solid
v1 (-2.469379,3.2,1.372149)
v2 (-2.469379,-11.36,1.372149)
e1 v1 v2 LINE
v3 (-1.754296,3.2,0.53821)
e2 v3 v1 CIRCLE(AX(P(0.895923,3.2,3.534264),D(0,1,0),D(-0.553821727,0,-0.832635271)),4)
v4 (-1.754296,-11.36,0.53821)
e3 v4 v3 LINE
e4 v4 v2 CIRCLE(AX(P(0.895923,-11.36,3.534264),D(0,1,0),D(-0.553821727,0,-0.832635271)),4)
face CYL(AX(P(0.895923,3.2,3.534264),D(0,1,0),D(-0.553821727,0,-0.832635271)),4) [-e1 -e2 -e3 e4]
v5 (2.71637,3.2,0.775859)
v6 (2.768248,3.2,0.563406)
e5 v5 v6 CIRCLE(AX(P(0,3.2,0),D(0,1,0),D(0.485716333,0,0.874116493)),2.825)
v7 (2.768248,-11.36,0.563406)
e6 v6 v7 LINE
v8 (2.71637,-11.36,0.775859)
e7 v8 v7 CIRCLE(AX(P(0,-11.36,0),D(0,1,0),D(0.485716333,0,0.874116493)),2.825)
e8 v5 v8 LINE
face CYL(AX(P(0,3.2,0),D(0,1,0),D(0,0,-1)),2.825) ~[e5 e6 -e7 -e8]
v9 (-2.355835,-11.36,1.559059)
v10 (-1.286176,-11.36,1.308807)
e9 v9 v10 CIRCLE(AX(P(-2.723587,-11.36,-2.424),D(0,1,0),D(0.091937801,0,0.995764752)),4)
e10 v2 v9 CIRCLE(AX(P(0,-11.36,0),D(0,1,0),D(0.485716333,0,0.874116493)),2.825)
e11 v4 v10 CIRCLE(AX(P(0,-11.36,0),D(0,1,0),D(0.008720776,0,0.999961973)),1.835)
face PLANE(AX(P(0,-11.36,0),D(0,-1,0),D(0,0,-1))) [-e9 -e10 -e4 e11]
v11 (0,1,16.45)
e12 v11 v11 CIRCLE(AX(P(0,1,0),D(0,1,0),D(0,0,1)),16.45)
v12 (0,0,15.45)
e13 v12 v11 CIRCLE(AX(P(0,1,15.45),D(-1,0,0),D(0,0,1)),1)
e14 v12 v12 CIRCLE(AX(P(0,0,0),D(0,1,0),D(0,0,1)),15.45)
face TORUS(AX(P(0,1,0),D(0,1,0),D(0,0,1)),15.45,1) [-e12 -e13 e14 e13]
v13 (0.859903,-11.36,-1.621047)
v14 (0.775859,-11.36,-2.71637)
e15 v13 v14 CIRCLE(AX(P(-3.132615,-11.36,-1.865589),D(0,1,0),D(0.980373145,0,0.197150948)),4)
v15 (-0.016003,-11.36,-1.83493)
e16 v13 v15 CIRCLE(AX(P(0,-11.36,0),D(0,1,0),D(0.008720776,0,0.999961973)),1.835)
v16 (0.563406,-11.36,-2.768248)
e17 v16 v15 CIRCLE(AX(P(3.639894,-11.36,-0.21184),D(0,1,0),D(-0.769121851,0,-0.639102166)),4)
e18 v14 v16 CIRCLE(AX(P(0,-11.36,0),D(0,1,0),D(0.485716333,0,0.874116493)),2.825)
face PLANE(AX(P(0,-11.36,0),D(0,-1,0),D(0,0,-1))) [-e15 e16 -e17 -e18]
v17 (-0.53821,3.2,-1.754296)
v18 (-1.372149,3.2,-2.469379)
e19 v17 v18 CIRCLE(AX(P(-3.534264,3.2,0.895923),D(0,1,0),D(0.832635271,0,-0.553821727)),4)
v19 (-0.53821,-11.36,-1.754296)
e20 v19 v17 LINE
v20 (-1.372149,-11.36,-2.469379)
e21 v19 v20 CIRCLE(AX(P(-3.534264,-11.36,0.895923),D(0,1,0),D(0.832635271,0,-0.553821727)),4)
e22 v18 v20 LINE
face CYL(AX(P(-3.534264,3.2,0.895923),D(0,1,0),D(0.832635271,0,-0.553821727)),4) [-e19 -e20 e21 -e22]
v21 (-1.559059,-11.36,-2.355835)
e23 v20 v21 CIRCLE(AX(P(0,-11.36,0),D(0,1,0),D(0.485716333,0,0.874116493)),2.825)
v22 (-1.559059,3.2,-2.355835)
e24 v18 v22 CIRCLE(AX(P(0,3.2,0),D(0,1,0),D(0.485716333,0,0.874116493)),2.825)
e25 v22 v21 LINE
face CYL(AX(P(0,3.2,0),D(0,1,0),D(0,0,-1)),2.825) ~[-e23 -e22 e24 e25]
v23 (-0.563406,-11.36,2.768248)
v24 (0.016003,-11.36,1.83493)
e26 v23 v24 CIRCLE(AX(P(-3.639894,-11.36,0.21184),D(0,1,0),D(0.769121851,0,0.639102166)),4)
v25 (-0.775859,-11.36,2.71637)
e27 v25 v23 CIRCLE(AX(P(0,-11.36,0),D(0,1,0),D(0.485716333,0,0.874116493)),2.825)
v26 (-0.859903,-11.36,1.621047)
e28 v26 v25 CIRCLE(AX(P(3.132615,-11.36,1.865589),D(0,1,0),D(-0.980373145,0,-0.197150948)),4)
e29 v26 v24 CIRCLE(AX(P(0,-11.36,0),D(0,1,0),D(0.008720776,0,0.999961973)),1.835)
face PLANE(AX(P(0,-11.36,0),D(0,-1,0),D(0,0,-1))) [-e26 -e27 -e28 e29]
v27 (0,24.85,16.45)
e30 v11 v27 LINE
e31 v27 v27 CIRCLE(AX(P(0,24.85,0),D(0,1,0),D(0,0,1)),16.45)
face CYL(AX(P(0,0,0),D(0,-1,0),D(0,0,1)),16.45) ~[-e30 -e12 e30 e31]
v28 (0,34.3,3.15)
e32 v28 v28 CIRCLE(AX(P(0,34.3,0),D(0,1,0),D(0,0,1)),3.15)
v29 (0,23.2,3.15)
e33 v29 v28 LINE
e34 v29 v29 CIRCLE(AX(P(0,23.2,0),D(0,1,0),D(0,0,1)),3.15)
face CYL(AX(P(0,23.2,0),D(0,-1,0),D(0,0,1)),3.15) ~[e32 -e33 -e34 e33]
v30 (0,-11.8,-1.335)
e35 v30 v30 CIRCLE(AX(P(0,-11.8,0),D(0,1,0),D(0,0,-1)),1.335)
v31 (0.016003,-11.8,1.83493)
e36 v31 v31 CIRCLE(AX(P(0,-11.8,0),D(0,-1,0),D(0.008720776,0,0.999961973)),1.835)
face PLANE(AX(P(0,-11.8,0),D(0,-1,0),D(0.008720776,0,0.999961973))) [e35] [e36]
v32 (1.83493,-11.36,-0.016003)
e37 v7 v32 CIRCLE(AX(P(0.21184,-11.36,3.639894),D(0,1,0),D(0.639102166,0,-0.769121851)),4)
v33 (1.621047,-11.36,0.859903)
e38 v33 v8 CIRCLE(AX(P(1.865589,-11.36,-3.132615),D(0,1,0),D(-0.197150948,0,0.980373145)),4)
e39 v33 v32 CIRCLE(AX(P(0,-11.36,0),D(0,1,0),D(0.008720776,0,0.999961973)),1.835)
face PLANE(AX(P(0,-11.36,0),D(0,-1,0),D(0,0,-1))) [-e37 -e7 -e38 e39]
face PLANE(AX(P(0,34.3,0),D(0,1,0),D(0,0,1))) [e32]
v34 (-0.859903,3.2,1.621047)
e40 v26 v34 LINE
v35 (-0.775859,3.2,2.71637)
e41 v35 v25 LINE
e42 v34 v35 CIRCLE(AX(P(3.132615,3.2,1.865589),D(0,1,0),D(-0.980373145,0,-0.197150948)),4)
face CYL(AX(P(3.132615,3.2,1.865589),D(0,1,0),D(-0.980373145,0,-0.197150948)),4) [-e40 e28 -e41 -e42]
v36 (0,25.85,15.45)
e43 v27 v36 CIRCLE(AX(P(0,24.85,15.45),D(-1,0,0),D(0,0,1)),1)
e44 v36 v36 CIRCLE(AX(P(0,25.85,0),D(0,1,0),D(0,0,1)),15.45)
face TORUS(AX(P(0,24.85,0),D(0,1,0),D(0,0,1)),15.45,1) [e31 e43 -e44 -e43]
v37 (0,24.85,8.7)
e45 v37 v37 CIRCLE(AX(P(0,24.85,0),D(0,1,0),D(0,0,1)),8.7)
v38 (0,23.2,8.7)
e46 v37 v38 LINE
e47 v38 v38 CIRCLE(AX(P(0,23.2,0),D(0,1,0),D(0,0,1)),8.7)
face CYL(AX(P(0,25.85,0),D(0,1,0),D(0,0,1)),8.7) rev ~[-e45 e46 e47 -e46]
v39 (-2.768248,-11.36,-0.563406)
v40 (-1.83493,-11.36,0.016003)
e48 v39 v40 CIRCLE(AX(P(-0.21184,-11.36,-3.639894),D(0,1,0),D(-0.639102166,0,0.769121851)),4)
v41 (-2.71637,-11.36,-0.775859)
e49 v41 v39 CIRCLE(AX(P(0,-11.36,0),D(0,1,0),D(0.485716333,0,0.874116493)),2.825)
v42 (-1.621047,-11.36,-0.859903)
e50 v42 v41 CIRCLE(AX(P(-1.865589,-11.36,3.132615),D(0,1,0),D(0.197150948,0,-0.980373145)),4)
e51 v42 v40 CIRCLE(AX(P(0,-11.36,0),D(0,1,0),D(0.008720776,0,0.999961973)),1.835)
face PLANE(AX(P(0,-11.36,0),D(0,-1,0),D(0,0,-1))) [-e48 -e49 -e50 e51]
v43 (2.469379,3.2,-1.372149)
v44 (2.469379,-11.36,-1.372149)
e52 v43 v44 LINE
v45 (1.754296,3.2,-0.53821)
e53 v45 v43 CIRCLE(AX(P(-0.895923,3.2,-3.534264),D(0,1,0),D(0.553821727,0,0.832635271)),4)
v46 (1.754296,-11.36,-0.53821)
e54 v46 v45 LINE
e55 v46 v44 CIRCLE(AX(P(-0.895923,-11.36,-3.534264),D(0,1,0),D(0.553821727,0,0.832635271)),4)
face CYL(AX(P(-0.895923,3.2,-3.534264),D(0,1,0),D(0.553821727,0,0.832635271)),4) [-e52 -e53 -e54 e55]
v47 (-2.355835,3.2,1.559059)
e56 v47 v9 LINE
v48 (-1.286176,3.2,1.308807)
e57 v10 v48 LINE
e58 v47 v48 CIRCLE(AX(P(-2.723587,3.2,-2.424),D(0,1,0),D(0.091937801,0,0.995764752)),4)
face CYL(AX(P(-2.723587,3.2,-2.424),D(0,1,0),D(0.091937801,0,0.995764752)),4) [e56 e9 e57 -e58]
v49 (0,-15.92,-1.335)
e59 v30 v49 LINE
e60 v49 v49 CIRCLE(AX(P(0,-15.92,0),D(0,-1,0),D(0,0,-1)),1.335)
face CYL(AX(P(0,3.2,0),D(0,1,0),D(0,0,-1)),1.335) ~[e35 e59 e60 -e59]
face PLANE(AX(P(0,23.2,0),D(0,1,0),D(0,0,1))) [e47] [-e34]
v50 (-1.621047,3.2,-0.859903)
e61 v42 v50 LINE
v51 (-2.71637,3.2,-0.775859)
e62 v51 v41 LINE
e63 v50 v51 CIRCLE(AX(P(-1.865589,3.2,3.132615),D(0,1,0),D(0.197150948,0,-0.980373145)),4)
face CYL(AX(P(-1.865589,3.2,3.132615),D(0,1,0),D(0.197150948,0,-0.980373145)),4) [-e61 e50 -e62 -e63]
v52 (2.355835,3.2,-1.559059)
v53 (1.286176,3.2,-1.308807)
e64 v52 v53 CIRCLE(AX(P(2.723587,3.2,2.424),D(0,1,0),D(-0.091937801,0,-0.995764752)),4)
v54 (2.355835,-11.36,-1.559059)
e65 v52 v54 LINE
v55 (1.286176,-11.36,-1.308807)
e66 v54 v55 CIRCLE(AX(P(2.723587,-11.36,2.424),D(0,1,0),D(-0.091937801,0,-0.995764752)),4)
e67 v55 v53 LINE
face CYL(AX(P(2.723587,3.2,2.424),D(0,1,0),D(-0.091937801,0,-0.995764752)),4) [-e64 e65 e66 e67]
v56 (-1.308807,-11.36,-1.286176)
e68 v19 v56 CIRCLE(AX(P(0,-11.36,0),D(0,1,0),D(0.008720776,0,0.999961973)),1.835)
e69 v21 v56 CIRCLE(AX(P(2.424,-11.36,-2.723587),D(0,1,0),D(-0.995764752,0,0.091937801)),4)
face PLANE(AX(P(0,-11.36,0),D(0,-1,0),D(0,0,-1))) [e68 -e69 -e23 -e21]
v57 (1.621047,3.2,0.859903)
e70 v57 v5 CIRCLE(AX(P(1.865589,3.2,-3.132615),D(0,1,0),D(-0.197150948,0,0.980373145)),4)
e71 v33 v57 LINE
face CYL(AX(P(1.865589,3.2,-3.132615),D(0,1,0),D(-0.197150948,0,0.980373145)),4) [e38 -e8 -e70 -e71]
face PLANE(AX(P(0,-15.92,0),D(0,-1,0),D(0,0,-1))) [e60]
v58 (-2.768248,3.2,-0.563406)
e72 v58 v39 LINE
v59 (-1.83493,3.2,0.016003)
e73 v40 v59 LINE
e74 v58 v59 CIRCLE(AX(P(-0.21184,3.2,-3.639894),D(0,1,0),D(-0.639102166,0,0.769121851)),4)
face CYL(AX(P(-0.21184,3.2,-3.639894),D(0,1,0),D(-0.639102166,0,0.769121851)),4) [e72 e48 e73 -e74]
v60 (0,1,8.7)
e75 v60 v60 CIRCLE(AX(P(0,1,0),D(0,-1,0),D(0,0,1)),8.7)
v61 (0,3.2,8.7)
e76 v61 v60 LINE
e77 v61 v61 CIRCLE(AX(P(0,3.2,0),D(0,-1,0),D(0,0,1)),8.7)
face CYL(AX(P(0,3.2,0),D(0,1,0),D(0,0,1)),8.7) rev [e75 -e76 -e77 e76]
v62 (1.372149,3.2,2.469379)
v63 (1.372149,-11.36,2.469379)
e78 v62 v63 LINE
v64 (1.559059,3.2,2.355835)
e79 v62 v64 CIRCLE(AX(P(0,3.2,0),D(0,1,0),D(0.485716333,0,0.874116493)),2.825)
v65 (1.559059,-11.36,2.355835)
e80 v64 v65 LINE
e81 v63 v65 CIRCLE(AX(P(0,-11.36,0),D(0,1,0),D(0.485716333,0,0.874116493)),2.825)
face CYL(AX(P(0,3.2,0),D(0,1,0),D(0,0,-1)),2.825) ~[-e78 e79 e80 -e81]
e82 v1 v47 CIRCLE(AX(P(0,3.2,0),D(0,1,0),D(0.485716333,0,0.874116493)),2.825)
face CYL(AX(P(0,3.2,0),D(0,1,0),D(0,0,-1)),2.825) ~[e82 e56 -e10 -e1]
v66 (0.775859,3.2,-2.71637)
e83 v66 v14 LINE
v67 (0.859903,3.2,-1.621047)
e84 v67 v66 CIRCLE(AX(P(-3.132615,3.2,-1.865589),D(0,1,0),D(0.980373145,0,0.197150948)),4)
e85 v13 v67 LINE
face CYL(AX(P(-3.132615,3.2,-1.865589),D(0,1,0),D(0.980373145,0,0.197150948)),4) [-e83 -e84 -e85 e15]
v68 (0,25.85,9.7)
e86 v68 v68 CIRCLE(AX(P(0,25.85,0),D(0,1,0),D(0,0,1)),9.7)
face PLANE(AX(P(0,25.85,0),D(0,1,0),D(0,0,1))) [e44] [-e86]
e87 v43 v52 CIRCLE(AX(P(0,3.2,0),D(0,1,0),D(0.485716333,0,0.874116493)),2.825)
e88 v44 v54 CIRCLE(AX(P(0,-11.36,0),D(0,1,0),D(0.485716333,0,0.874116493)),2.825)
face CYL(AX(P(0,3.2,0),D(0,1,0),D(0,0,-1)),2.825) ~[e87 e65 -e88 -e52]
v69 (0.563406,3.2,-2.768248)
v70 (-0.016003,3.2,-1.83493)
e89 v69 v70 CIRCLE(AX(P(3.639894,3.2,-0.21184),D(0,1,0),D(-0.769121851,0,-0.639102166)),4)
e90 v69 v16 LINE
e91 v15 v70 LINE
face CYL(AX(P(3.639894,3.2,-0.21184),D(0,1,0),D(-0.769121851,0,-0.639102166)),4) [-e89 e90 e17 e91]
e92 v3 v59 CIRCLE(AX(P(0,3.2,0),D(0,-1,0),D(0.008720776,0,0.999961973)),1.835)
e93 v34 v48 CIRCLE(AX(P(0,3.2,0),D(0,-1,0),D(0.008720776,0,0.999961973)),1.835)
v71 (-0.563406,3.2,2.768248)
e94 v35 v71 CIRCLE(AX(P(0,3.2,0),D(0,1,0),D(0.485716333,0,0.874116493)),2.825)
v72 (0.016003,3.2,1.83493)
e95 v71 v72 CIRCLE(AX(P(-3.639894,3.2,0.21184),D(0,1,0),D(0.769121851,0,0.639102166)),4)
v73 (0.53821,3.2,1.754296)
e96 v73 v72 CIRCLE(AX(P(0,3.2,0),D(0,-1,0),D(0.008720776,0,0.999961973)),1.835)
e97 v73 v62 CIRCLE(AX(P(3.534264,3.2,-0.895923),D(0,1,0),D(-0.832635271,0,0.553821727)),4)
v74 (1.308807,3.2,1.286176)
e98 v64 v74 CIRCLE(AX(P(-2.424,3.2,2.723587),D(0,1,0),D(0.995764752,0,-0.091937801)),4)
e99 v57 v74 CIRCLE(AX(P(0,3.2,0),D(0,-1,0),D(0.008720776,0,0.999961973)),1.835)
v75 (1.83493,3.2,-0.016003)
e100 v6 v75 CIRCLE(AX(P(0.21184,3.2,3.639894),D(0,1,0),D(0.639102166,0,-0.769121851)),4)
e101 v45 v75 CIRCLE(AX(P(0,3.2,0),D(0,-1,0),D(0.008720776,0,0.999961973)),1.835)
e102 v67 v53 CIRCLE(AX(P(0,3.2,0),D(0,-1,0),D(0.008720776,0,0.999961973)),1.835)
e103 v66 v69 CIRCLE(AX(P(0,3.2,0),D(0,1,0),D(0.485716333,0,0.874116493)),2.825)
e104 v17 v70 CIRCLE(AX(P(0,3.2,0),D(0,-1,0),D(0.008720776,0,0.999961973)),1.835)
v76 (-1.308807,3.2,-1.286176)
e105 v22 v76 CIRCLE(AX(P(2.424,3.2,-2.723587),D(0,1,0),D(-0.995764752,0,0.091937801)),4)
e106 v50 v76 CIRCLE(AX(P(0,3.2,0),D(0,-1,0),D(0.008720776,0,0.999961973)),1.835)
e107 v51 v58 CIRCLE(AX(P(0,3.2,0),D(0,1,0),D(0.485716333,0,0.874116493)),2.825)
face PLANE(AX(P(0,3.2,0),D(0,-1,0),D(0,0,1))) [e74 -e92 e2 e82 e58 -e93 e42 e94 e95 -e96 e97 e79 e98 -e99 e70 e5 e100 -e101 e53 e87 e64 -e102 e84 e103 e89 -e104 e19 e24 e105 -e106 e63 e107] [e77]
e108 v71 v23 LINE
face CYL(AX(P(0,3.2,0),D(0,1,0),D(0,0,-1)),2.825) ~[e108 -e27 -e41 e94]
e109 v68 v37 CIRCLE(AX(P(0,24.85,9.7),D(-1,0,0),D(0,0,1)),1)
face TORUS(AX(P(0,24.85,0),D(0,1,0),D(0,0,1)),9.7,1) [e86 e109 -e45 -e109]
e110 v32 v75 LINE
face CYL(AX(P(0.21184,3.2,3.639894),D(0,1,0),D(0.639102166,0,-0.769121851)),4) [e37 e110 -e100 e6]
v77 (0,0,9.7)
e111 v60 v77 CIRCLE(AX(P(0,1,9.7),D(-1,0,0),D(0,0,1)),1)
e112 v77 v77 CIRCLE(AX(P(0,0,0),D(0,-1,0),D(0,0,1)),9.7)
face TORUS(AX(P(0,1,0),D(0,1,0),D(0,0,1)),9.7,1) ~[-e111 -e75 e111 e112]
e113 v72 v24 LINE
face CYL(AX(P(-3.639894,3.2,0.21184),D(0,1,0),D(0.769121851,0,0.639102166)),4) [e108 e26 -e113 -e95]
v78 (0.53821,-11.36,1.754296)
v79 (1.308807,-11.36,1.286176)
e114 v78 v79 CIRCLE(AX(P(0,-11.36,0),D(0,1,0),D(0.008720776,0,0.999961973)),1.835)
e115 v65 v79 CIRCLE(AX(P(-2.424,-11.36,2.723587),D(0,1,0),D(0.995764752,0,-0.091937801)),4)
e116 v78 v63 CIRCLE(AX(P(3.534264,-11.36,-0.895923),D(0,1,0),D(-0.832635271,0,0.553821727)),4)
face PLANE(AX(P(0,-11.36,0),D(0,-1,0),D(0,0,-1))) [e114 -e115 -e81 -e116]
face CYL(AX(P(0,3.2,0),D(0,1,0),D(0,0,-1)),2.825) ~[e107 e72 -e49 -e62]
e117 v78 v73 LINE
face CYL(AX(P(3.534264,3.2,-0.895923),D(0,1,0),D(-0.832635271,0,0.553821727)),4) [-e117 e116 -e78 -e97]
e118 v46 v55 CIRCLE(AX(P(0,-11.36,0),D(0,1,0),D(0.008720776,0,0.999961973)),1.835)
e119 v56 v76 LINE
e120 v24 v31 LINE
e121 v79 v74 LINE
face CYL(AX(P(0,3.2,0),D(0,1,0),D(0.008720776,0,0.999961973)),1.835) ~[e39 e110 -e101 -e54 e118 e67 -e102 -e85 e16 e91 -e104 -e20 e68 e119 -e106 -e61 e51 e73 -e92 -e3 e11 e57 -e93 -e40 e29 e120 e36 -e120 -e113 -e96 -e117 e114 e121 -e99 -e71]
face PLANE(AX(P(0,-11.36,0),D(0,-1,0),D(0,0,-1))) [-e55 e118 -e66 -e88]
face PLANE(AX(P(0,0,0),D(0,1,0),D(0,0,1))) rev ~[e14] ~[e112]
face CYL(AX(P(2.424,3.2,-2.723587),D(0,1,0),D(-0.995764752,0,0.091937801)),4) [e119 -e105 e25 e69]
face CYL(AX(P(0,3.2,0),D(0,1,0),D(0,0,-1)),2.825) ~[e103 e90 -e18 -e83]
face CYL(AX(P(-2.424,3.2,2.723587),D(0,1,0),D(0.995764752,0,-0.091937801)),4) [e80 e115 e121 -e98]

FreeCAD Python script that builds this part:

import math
import FreeCAD as App
import Part
import Sketcher
from FreeCAD import Vector
Q = App.Units.Quantity


def edges_at(feature, points):
    """Names of the edges that pass closest to the given points."""
    edges = feature.Shape.Edges
    near = lambda p: min(range(len(edges)), key=lambda i: edges[i].distToShape(Part.Vertex(*p))[0])
    return sorted({f"Edge{near(p) + 1}" for p in points})

doc = App.newDocument("Part")
body = doc.addObject("PartDesign::Body", "Body")

sketch1 = body.newObject("Sketcher::SketchObject", "Sketch")
sketch1.AttachmentSupport = (doc.getObject("XZ_Plane"), [""])
sketch1.MapMode = "FlatFace"
sketch1.addGeometry(Part.Circle(Vector(0, 0, 0), Vector(0, 0, 1), 16), False)
sketch1.addConstraint([
    Sketcher.Constraint("Coincident", 0, 3, -1, 1),
    Sketcher.Constraint("Diameter", 0, Q("32.9 mm")),
])
pad1 = body.newObject("PartDesign::Pad", "Pad")
pad1.Profile = sketch1
pad1.Length = 25.85
pad1.Reversed = True

sketch2 = body.newObject("Sketcher::SketchObject", "Sketch001")
sketch2.AttachmentSupport = (doc.getObject("XZ_Plane"), [""])
sketch2.MapMode = "FlatFace"
sketch2.AttachmentOffset = App.Placement(Vector(0, 0, -25.85), App.Rotation())
sketch2.addGeometry(Part.Circle(Vector(0, 0, 0), Vector(0, 0, 1), 9), False)
sketch2.addConstraint([
    Sketcher.Constraint("Coincident", 0, 3, -1, 1),
    Sketcher.Constraint("Diameter", 0, Q("17.4 mm")),
])
pocket1 = body.newObject("PartDesign::Pocket", "Pocket")
pocket1.Profile = sketch2
pocket1.Length = 2.65
pocket1.Reversed = True

sketch3 = body.newObject("Sketcher::SketchObject", "Sketch002")
sketch3.AttachmentSupport = (doc.getObject("XZ_Plane"), [""])
sketch3.MapMode = "FlatFace"
sketch3.AttachmentOffset = App.Placement(Vector(0, 0, -23.2), App.Rotation())
sketch3.addGeometry(Part.Circle(Vector(0, 0, 0), Vector(0, 0, 1), 3.1), False)
sketch3.addConstraint([
    Sketcher.Constraint("Coincident", 0, 3, -1, 1),
    Sketcher.Constraint("Diameter", 0, Q("6.3 mm")),
])
pad2 = body.newObject("PartDesign::Pad", "Pad001")
pad2.Profile = sketch3
pad2.Length = 11.1
pad2.Reversed = True

sketch4 = body.newObject("Sketcher::SketchObject", "Sketch003")
sketch4.AttachmentSupport = (doc.getObject("XZ_Plane"), [""])
sketch4.MapMode = "FlatFace"
sketch4.AttachmentOffset = App.Placement(Vector(0, 0, -3.2), App.Rotation())
sketch4.addGeometry(Part.Circle(Vector(0, 0, 0), Vector(0, 0, 1), 9), False)
sketch4.addConstraint([
    Sketcher.Constraint("Coincident", 0, 3, -1, 1),
    Sketcher.Constraint("Diameter", 0, Q("17.4 mm")),
])
pocket2 = body.newObject("PartDesign::Pocket", "Pocket001")
pocket2.Profile = sketch4
pocket2.Length = 3.2
pocket2.Reversed = True

sketch5 = body.newObject("Sketcher::SketchObject", "Sketch004")
sketch5.AttachmentSupport = (doc.getObject("XZ_Plane"), [""])
sketch5.MapMode = "FlatFace"
sketch5.AttachmentOffset = App.Placement(Vector(0, 0, -3.2), App.Rotation())
sketch5.addGeometry(Part.Circle(Vector(0, 0, 0), Vector(0, 0, 1), 1.3), False)
sketch5.addConstraint([
    Sketcher.Constraint("Coincident", 0, 3, -1, 1),
    Sketcher.Constraint("Diameter", 0, Q("2.67 mm")),
])
pad3 = body.newObject("PartDesign::Pad", "Pad002")
pad3.Profile = sketch5
pad3.Length = 19.12

sketch6 = body.newObject("Sketcher::SketchObject", "Sketch005")
sketch6.AttachmentSupport = (doc.getObject("XZ_Plane"), [""])
sketch6.MapMode = "FlatFace"
sketch6.AttachmentOffset = App.Placement(Vector(0, 0, -3.2), App.Rotation())
sketch6.addGeometry(Part.Circle(Vector(0, 0, 0), Vector(0, 0, 1), 2.8), False)
sketch6.addConstraint([
    Sketcher.Constraint("Coincident", 0, 3, -1, 1),
    Sketcher.Constraint("Diameter", 0, Q("5.65 mm")),
])
pad4 = body.newObject("PartDesign::Pad", "Pad003")
pad4.Profile = sketch6
pad4.Length = 14.56
doc.recompute()

fillet = body.newObject("PartDesign::Fillet", "Fillet")
fillet.Base = (pad4, edges_at(pad4, [
    (0, 0, -8.7),
    (0, 0, -16.45),
    (0, 25.85, -16.45),
    (0, 25.85, -8.7),
]))
fillet.Radius = 1

sketch7 = body.newObject("Sketcher::SketchObject", "Sketch006")
sketch7.AttachmentSupport = (doc.getObject("XZ_Plane"), [""])
sketch7.MapMode = "FlatFace"
sketch7.AttachmentOffset = App.Placement(Vector(0, 0, -3.2), App.Rotation())
sketch7.addGeometry([
    Part.ArcOfCircle(Part.Circle(Vector(0, 0, 0), Vector(0, 0, 1), 2.8), math.radians(61), math.radians(102)),
    Part.ArcOfCircle(Part.Circle(Vector(-3.6, 0.2, 0), Vector(0, 0, 1), 4), math.radians(16), math.radians(40)),
    Part.ArcOfCircle(Part.Circle(Vector(3.5, -0.9, 0), Vector(0, 0, 1), 4), math.radians(123), math.radians(146)),
], False)
sketch7.addConstraint([
    Sketcher.Constraint("Coincident", 0, 2, 1, 2),
    Sketcher.Constraint("Coincident", 1, 1, 2, 2),
    Sketcher.Constraint("Coincident", 2, 1, 0, 1),
    Sketcher.Constraint("Coincident", 0, 3, -1, 1),
    Sketcher.Constraint("Equal", 1, 2),
    Sketcher.Constraint("Radius", 1, Q("4 mm")),
    Sketcher.Constraint("Radius", 0, Q("2.825 mm")),
    Sketcher.Constraint("DistanceY", 2, 3, 2, 1, Q("3.365302 mm")),
    Sketcher.Constraint("DistanceY", -1, 1, 1, 3, Q("0.21184 mm")),
    Sketcher.Constraint("DistanceY", -1, 1, 0, 2, Q("2.768248 mm")),
    Sketcher.Constraint("DistanceX", -1, 1, 2, 1, Q("1.372149 mm")),
])
pocket3 = body.newObject("PartDesign::Pocket", "Pocket002")
pocket3.Profile = sketch7
pocket3.Length = 14.56
pocket3.Reversed = True
doc.recompute()

polarpattern = body.newObject("PartDesign::PolarPattern", "PolarPattern")
polarpattern.Originals = [pocket3]
polarpattern.Axis = (doc.getObject("Y_Axis"), [""])
polarpattern.Angle = 360
polarpattern.Occurrences = 8
body.Tip = polarpattern

sketch8 = body.newObject("Sketcher::SketchObject", "Sketch007")
sketch8.AttachmentSupport = (doc.getObject("XZ_Plane"), [""])
sketch8.MapMode = "FlatFace"
sketch8.AttachmentOffset = App.Placement(Vector(0, 0, -3.2), App.Rotation())
sketch8.addGeometry(Part.Circle(Vector(0, 0, 0), Vector(0, 0, 1), 1.8), False)
sketch8.addConstraint([
    Sketcher.Constraint("Coincident", 0, 3, -1, 1),
    Sketcher.Constraint("Diameter", 0, Q("3.67 mm")),
])
pad5 = body.newObject("PartDesign::Pad", "Pad004")
pad5.Profile = sketch8
pad5.Length = 15

doc.recompute()
